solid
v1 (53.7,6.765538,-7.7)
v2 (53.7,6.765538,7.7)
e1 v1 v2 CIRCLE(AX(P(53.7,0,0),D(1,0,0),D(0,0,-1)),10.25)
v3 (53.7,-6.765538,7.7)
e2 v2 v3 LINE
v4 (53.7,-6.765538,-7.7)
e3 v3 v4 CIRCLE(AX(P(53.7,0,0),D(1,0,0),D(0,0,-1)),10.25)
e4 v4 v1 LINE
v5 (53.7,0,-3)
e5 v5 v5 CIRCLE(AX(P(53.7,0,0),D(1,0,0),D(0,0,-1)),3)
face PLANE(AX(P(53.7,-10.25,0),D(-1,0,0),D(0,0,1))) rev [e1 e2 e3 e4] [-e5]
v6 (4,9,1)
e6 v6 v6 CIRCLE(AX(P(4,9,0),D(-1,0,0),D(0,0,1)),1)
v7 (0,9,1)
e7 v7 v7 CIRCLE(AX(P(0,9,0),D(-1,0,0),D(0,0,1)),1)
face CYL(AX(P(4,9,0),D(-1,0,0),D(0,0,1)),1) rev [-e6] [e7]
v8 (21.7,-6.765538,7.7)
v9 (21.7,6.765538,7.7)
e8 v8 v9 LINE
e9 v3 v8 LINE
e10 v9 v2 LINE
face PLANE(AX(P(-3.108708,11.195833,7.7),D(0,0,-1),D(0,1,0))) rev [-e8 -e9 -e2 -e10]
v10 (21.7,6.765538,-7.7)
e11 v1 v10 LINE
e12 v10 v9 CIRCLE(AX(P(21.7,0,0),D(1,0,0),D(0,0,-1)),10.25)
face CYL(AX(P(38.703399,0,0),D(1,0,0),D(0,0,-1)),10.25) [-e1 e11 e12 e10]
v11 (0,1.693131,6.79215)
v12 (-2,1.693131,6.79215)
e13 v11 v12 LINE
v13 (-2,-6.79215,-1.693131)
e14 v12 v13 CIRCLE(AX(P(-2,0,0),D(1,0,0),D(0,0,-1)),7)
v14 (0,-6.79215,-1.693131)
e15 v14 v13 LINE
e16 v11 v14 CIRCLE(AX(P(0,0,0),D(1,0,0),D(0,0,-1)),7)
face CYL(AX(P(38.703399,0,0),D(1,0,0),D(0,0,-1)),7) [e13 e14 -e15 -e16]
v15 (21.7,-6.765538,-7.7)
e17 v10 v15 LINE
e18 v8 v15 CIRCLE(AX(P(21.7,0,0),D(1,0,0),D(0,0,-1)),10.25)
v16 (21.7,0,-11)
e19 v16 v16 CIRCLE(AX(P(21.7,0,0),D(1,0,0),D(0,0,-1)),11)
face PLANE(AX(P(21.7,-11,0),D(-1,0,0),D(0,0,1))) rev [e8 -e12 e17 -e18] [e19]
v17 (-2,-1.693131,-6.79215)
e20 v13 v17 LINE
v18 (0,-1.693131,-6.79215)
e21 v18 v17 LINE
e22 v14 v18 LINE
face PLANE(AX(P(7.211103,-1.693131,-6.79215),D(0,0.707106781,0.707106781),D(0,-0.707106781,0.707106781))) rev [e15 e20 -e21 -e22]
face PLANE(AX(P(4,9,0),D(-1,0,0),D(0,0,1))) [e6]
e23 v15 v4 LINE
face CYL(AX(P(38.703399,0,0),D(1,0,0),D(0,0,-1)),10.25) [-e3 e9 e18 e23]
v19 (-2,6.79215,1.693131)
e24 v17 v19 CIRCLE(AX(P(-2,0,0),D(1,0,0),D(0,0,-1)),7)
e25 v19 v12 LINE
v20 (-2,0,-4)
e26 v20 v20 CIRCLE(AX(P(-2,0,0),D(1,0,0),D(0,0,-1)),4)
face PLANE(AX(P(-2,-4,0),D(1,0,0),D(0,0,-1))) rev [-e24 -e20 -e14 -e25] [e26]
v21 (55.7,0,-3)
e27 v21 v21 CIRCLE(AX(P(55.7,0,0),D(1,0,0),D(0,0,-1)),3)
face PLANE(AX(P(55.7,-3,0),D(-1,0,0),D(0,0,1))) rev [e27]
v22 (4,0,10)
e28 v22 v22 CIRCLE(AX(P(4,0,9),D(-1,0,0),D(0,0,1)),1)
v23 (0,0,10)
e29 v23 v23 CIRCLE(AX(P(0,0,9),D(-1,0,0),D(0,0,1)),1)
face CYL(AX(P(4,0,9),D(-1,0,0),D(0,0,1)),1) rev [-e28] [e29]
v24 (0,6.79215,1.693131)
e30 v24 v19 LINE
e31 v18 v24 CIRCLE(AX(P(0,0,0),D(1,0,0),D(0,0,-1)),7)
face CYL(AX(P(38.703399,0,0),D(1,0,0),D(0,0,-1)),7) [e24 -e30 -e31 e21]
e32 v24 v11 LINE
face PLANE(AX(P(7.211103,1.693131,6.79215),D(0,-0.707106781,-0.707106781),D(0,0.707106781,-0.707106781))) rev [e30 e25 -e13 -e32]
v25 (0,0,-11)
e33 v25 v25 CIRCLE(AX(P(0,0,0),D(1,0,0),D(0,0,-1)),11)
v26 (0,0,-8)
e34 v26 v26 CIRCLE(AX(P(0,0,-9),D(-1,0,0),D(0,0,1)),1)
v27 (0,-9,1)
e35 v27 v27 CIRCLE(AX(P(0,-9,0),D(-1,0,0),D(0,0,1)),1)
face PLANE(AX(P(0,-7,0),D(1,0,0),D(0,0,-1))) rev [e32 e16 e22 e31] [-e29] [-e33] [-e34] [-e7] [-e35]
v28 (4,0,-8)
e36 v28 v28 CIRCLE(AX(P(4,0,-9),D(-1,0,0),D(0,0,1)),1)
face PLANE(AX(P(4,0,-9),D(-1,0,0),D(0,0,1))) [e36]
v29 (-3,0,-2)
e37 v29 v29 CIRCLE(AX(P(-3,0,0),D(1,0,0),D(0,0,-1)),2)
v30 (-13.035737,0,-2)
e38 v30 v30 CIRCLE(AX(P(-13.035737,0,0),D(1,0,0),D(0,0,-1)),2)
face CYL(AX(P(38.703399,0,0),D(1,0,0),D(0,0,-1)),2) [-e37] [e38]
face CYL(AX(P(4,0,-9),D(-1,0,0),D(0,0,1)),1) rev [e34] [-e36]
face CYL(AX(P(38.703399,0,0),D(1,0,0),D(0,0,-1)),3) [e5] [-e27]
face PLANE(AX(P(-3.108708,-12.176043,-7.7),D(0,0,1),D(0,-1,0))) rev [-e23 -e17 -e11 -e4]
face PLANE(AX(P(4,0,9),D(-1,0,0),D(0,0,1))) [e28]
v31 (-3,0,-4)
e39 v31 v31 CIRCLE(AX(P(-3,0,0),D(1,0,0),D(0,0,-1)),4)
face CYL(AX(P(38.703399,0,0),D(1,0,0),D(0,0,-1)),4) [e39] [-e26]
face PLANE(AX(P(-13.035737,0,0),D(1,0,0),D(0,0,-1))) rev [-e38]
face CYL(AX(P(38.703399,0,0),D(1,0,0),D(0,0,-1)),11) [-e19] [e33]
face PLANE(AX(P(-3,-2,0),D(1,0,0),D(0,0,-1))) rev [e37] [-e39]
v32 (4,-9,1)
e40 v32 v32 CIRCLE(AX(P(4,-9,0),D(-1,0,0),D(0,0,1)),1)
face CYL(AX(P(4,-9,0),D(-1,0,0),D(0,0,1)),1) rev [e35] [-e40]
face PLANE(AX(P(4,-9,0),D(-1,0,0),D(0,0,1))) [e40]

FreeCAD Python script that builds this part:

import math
import FreeCAD as App
import Part
import Sketcher

V = App.Vector
Q = App.Units.Quantity


def add_polygon(sketch, points):
    """Adds a closed chain of lines whose ends are joined by coincident constraints."""
    first, n = sketch.GeometryCount, len(points)
    for a, b in zip(points, points[1:] + points[:1]):
        sketch.addGeometry(Part.LineSegment(App.Vector(*a, 0), App.Vector(*b, 0)), False)
    for i in range(n):
        sketch.addConstraint(Sketcher.Constraint("Coincident", first + i, 2, first + (i + 1) % n, 1))

doc = App.newDocument("Part")
body = doc.addObject("PartDesign::Body", "Body")

sketch1 = body.newObject("Sketcher::SketchObject", "Sketch")
sketch1.AttachmentSupport = (doc.getObject("XY_Plane"), [""])
sketch1.MapMode = "FlatFace"
add_polygon(sketch1, [(-13, 0), (-13, -2), (-3, -2), (-3, -4), (-2, -4), (-2, -7), (0, -7), (0, -11), (21.7, -11), (21.7, -10.2), (53.7, -10.2), (53.7, -3), (55.7, -3), (55.7, 0)])
sketch1.addConstraint([
    Sketcher.Constraint("Vertical", 0),
    Sketcher.Constraint("Horizontal", 1),
    Sketcher.Constraint("Vertical", 2),
    Sketcher.Constraint("Horizontal", 3),
    Sketcher.Constraint("Vertical", 4),
    Sketcher.Constraint("Horizontal", 5),
    Sketcher.Constraint("Vertical", 6),
    Sketcher.Constraint("Horizontal", 7),
    Sketcher.Constraint("Vertical", 8),
    Sketcher.Constraint("Horizontal", 9),
    Sketcher.Constraint("Vertical", 10),
    Sketcher.Constraint("Horizontal", 11),
    Sketcher.Constraint("Vertical", 12),
    Sketcher.Constraint("Horizontal", 13),
    Sketcher.Constraint("PointOnObject", 5, 2, -2),
    Sketcher.Constraint("PointOnObject", 12, 2, -1),
    Sketcher.Constraint("Equal", 5, 11),
    Sketcher.Constraint("Equal", 11, 0),
    Sketcher.Constraint("Equal", 0, 2),
    Sketcher.Constraint("Equal", 4, 12),
    Sketcher.Constraint("DistanceX", 3, 1, 3, 2, 1.0),
    Sketcher.Constraint("DistanceX", 5, 1, 5, 2, 2.0),
    Sketcher.Constraint("DistanceX", 9, 1, 9, 2, 32.0),
    Sketcher.Constraint("DistanceY", 4, 2, 4, 1, 3.0),
    Sketcher.Constraint("DistanceY", 6, 2, 6, 1, 4.0),
    Sketcher.Constraint("DistanceX", 7, 1, 7, 2, 21.7),
    Sketcher.Constraint("DistanceY", 8, 1, 8, 2, 0.75),
    Sketcher.Constraint("DistanceX", 1, 1, 1, 2, 10.035737),
])
revolution = body.newObject("PartDesign::Revolution", "Revolution")
revolution.Profile = sketch1
revolution.ReferenceAxis = (sketch1, ["H_Axis"])
revolution.Angle = 360

sketch2 = body.newObject("Sketcher::SketchObject", "Sketch001")
sketch2.AttachmentSupport = (doc.getObject("YZ_Plane"), [""])
sketch2.MapMode = "FlatFace"
sketch2.AttachmentOffset = App.Placement(V(0, 0, 53.7), App.Rotation())
add_polygon(sketch2, [(11, 16), (-12, 16), (-12, 8), (11, 8)])
add_polygon(sketch2, [(11, -8), (-12, -8), (-12, -16), (11, -16)])
sketch2.addConstraint([
    Sketcher.Constraint("Horizontal", 0),
    Sketcher.Constraint("Vertical", 1),
    Sketcher.Constraint("Horizontal", 2),
    Sketcher.Constraint("Vertical", 3),
    Sketcher.Constraint("Horizontal", 4),
    Sketcher.Constraint("Vertical", 5),
    Sketcher.Constraint("Horizontal", 6),
    Sketcher.Constraint("Vertical", 7),
    Sketcher.Constraint("Symmetric", 1, 2, 4, 2, -1),
    Sketcher.Constraint("Vertical", 3, 2, 6, 2),
    Sketcher.Constraint("DistanceY", -1, 1, 1, 2, 7.7),
    Sketcher.Constraint("DistanceX", 0, 2, 0, 1, 23.371875),
    Sketcher.Constraint("DistanceY", 1, 2, 1, 1, 8.320303),
    Sketcher.Constraint("DistanceY", 5, 2, 5, 1, 7.922092),
    Sketcher.Constraint("DistanceX", 0, 2, -1, 1, 12.176043),
])
pocket1 = body.newObject("PartDesign::Pocket", "Pocket")
pocket1.Profile = sketch2
pocket1.Length = 32

sketch3 = body.newObject("Sketcher::SketchObject", "Sketch002")
sketch3.AttachmentSupport = (doc.getObject("YZ_Plane"), [""])
sketch3.MapMode = "FlatFace"
sketch3.addGeometry([
    Part.LineSegment(V(7, 2, 0), V(2, 7, 0)),
    Part.ArcOfCircle(Part.Circle(V(0, 0, 0), V(0, 0, 1), 7), math.radians(14), math.radians(76)),
    Part.LineSegment(V(-7, -2, 0), V(-2, -7, 0)),
    Part.ArcOfCircle(Part.Circle(V(0, 0, 0), V(0, 0, 1), 7), math.radians(-166), math.radians(-104)),
], False)
sketch3.addConstraint([
    Sketcher.Constraint("Coincident", 0, 1, 1, 1),
    Sketcher.Constraint("Coincident", 1, 2, 0, 2),
    Sketcher.Constraint("Coincident", 2, 1, 3, 1),
    Sketcher.Constraint("Coincident", 3, 2, 2, 2),
    Sketcher.Constraint("Coincident", 1, 3, -1, 1),
    Sketcher.Constraint("Coincident", 3, 3, -1, 1),
    Sketcher.Constraint("Equal", 1, 3),
    Sketcher.Constraint("Parallel", 0, 2),
    Sketcher.Constraint("Equal", 0, 2),
    Sketcher.Constraint("Radius", 1, 7.0),
    Sketcher.Constraint("Angle", 0, Q("135 deg")),
    Sketcher.Constraint("DistanceX", 2, 1, 0, 1, 13.584301),
])
pocket2 = body.newObject("PartDesign::Pocket", "Pocket001")
pocket2.Profile = sketch3
pocket2.Length = 2

sketch4 = body.newObject("Sketcher::SketchObject", "Sketch003")
sketch4.AttachmentSupport = (doc.getObject("YZ_Plane"), [""])
sketch4.MapMode = "FlatFace"
sketch4.addGeometry([
    Part.Circle(V(9, 0, 0), V(0, 0, 1), 1),
    Part.Circle(V(0, -9, 0), V(0, 0, 1), 1),
    Part.Circle(V(-9, 0, 0), V(0, 0, 1), 1),
    Part.Circle(V(0, 9, 0), V(0, 0, 1), 1),
], False)
sketch4.addConstraint([
    Sketcher.Constraint("Equal", 0, 1),
    Sketcher.Constraint("Equal", 1, 2),
    Sketcher.Constraint("Equal", 2, 3),
    Sketcher.Constraint("Symmetric", 0, 3, 2, 3, -1, 1),
    Sketcher.Constraint("Symmetric", 1, 3, 3, 3, -1, 1),
    Sketcher.Constraint("PointOnObject", 0, 3, -1),
    Sketcher.Constraint("PointOnObject", 1, 3, -2),
    Sketcher.Constraint("Diameter", 0, 2.0),
    Sketcher.Constraint("DistanceX", -1, 1, 0, 3, 9.0),
    Sketcher.Constraint("DistanceY", 1, 3, -1, 1, 9.0),
])
pocket3 = body.newObject("PartDesign::Pocket", "Pocket002")
pocket3.Profile = sketch4
pocket3.Length = 4
pocket3.Reversed = True

doc.recompute()
